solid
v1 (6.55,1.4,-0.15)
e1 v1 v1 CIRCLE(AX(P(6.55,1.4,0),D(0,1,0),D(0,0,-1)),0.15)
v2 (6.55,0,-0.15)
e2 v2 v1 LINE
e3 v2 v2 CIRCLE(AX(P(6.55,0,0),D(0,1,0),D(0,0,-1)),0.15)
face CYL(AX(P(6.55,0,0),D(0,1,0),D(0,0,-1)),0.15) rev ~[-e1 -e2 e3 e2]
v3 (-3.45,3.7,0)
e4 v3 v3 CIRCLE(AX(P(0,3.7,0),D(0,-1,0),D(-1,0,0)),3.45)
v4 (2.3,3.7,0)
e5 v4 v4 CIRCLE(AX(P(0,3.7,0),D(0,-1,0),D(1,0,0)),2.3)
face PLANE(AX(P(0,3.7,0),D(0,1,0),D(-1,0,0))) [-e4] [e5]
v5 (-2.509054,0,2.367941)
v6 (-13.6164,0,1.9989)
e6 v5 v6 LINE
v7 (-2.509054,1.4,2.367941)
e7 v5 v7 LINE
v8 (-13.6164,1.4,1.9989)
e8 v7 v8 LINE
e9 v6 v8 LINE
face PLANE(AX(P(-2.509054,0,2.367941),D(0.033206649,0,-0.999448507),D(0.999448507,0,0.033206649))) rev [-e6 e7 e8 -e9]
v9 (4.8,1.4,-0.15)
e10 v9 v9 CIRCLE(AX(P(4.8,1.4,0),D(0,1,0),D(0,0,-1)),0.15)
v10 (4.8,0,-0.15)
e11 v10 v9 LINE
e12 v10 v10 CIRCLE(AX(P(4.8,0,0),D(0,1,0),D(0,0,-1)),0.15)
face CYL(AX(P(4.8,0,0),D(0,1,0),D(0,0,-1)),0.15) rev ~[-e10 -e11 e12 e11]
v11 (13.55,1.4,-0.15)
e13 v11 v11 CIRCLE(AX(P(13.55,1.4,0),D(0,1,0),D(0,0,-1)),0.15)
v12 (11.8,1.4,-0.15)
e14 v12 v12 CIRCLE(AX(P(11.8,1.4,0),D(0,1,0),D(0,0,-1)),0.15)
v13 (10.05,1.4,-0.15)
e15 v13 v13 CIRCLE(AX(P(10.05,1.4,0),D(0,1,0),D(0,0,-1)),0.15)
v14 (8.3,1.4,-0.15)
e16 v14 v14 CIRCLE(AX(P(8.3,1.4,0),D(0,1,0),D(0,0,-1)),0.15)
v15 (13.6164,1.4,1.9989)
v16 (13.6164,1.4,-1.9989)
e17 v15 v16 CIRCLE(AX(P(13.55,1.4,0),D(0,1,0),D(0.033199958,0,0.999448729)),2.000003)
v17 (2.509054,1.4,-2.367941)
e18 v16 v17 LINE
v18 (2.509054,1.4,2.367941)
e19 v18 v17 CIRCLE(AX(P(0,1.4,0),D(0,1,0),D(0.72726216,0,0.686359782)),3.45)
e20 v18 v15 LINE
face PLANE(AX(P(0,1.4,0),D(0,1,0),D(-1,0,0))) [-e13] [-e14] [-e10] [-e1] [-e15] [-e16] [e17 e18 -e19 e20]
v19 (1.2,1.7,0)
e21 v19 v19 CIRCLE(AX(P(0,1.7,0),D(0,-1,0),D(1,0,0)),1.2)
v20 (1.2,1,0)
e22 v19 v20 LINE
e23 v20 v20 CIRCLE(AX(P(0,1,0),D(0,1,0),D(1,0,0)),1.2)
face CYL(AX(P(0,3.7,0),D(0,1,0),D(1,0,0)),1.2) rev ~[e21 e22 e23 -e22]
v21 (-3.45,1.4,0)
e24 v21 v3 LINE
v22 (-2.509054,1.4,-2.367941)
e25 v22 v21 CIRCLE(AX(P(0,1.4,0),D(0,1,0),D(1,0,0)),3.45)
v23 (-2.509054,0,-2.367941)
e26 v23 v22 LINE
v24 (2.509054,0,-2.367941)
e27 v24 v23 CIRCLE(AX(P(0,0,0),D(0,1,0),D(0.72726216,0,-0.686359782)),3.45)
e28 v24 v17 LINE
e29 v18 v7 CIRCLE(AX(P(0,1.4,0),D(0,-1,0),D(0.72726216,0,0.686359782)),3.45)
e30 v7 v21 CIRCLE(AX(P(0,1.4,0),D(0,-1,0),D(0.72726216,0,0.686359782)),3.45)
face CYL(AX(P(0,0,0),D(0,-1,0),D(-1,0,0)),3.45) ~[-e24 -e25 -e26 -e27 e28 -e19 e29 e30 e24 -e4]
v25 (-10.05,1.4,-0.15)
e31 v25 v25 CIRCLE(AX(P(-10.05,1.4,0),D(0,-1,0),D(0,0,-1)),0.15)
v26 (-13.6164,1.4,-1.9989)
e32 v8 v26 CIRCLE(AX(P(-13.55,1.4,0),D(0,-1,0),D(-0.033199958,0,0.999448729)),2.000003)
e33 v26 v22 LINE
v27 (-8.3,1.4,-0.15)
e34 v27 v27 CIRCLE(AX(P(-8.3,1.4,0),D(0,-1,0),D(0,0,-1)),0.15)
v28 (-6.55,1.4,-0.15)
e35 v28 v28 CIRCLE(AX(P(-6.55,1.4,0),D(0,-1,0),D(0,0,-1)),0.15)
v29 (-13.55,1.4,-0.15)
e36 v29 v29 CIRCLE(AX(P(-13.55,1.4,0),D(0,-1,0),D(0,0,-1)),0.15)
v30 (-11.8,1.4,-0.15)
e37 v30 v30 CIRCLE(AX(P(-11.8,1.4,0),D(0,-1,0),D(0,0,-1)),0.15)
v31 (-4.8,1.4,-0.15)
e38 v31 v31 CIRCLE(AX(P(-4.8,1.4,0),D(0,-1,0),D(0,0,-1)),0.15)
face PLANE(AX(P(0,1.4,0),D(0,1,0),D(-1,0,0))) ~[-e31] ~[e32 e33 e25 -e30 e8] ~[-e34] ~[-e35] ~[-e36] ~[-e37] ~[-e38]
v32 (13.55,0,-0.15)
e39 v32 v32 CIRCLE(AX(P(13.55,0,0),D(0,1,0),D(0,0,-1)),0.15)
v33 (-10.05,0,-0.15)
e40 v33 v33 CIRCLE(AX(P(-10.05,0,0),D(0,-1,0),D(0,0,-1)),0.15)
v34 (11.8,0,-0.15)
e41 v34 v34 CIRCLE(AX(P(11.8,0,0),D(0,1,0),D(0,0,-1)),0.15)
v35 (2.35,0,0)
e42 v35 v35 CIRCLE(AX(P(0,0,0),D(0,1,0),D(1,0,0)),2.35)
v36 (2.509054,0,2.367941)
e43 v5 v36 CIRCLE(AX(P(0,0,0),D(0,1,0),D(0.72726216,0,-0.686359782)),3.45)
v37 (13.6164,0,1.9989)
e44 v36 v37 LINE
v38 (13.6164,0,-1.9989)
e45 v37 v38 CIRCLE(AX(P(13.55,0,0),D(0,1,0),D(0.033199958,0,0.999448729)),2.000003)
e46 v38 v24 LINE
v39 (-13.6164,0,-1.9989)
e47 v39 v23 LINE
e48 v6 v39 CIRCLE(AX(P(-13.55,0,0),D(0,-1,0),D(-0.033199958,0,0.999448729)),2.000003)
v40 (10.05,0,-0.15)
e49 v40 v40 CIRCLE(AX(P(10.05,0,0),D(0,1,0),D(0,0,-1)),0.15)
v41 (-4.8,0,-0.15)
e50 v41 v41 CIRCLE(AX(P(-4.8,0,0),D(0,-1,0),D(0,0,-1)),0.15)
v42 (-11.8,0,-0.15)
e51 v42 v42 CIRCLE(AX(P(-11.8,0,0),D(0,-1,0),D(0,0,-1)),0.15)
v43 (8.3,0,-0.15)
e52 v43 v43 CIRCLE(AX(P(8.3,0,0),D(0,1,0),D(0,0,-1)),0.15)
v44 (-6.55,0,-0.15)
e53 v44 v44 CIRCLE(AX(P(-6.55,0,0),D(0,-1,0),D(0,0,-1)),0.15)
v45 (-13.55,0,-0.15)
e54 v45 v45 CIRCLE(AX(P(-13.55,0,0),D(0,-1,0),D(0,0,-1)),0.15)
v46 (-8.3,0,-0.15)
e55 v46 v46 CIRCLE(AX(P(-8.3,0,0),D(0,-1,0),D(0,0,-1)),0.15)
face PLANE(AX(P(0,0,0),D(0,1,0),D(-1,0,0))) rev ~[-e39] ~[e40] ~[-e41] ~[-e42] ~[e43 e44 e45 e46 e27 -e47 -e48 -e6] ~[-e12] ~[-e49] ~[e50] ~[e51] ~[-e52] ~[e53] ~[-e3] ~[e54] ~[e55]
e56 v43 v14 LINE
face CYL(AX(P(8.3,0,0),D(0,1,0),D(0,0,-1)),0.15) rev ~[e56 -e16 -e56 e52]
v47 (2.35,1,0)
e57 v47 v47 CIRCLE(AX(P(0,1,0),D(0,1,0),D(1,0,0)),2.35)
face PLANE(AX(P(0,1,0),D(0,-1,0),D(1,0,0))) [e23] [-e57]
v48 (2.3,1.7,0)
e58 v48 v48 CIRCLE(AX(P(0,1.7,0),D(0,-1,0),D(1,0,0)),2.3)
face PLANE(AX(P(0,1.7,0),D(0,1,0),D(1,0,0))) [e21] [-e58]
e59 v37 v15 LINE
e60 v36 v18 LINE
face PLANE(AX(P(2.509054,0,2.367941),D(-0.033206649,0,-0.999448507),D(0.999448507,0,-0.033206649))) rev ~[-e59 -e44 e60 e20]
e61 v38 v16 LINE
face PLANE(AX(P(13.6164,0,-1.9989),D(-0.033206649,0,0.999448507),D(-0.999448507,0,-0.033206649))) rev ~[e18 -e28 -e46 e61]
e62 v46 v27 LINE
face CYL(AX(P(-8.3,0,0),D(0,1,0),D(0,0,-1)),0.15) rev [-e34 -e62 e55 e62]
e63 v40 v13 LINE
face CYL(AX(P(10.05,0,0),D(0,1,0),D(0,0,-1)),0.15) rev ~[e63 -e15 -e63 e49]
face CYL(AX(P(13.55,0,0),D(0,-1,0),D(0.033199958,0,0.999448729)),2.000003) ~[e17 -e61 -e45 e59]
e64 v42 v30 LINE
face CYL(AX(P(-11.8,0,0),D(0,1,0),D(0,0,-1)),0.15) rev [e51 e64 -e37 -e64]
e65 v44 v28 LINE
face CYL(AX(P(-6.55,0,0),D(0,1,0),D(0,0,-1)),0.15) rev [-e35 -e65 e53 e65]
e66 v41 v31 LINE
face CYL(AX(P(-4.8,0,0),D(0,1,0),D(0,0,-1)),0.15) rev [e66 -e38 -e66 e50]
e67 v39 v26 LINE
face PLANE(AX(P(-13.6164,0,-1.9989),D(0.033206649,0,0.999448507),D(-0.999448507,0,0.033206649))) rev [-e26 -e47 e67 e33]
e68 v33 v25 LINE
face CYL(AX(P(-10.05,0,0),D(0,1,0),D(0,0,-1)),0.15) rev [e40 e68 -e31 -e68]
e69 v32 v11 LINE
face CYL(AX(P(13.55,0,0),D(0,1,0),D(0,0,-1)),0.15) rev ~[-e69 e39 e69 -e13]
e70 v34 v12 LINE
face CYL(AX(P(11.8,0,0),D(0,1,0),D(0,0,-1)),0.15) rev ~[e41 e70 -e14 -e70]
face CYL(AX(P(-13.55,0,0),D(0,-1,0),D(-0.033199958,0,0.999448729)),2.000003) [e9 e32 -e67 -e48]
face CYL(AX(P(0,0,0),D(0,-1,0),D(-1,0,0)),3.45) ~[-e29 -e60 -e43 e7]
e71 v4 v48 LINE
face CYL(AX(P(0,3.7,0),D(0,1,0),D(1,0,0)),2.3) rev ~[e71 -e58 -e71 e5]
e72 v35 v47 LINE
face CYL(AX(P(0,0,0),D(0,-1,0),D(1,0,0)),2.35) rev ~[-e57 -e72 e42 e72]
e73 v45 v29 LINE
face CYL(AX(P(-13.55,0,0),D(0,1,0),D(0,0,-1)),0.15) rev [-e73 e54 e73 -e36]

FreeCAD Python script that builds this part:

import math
import FreeCAD as App
import Part
import Sketcher
Q = App.Units.Quantity

doc = App.newDocument("Part")
body = doc.addObject("PartDesign::Body", "Body")

sketch1 = body.newObject("Sketcher::SketchObject", "Sketch")
sketch1.AttachmentSupport = (doc.getObject("XZ_Plane"), [""])
sketch1.MapMode = "FlatFace"
sketch1.addGeometry(Part.ArcOfCircle(Part.Circle(App.Vector(0, 0, 0), App.Vector(0, 0, 1), 3.5), math.radians(43), math.radians(317)), False)
sketch1.addGeometry(Part.LineSegment(App.Vector(2.5, 2.4, 0), App.Vector(13.6, 2, 0)), False)
sketch1.addGeometry(Part.ArcOfCircle(Part.Circle(App.Vector(13.6, 0, 0), App.Vector(0, 0, 1), 2), math.radians(-88), math.radians(88)), False)
sketch1.addGeometry(Part.LineSegment(App.Vector(13.6, -2, 0), App.Vector(2.5, -2.4, 0)), False)
sketch1.addConstraint(Sketcher.Constraint("Coincident", 0, 1, 1, 1))
sketch1.addConstraint(Sketcher.Constraint("Tangent", 1, 2, 2, 2))
sketch1.addConstraint(Sketcher.Constraint("Tangent", 2, 1, 3, 1))
sketch1.addConstraint(Sketcher.Constraint("Coincident", 3, 2, 0, 2))
sketch1.addConstraint(Sketcher.Constraint("Coincident", 0, 3, -1, 1))
sketch1.addConstraint(Sketcher.Constraint("Symmetric", 1, 2, 2, 1, -1))
sketch1.addConstraint(Sketcher.Constraint("Radius", 2, Q("2 mm")))
sketch1.addConstraint(Sketcher.Constraint("Radius", 0, Q("3.45 mm")))
sketch1.addConstraint(Sketcher.Constraint("DistanceX", -1, 1, 2, 3, Q("13.55 mm")))
sketch1.addConstraint(Sketcher.Constraint("DistanceX", -1, 1, 0, 1, Q("2.509 mm")))
pad1 = body.newObject("PartDesign::Pad", "Pad")
pad1.Profile = sketch1
pad1.Length = 1.4
pad1.Reversed = True

sketch2 = body.newObject("Sketcher::SketchObject", "Sketch001")
sketch2.AttachmentSupport = (doc.getObject("XZ_Plane"), [""])
sketch2.MapMode = "FlatFace"
sketch2.addGeometry(Part.Circle(App.Vector(0, 0, 0), App.Vector(0, 0, 1), 3.5), False)
sketch2.addConstraint(Sketcher.Constraint("Coincident", 0, 3, -1, 1))
sketch2.addConstraint(Sketcher.Constraint("Diameter", 0, Q("6.9 mm")))
pad2 = body.newObject("PartDesign::Pad", "Pad001")
pad2.Profile = sketch2
pad2.Length = 3.7
pad2.Reversed = True

sketch3 = body.newObject("Sketcher::SketchObject", "Sketch002")
sketch3.AttachmentSupport = (doc.getObject("XZ_Plane"), [""])
sketch3.MapMode = "FlatFace"
sketch3.AttachmentOffset = App.Placement(App.Vector(0, 0, -3.7), App.Rotation())
sketch3.addGeometry(Part.Circle(App.Vector(0, 0, 0), App.Vector(0, 0, 1), 1.2), False)
sketch3.addConstraint(Sketcher.Constraint("Coincident", 0, 3, -1, 1))
sketch3.addConstraint(Sketcher.Constraint("Diameter", 0, Q("2.4 mm")))
pocket1 = body.newObject("PartDesign::Pocket", "Pocket")
pocket1.Profile = sketch3
pocket1.Type = "ThroughAll"
pocket1.Reversed = True

sketch4 = body.newObject("Sketcher::SketchObject", "Sketch003")
sketch4.AttachmentSupport = (doc.getObject("XZ_Plane"), [""])
sketch4.MapMode = "FlatFace"
sketch4.AttachmentOffset = App.Placement(App.Vector(0, 0, -3.7), App.Rotation())
sketch4.addGeometry(Part.Circle(App.Vector(0, 0, 0), App.Vector(0, 0, 1), 2.3), False)
sketch4.addConstraint(Sketcher.Constraint("Coincident", 0, 3, -1, 1))
sketch4.addConstraint(Sketcher.Constraint("Diameter", 0, Q("4.6 mm")))
pocket2 = body.newObject("PartDesign::Pocket", "Pocket001")
pocket2.Profile = sketch4
pocket2.Length = 2
pocket2.Reversed = True

sketch5 = body.newObject("Sketcher::SketchObject", "Sketch004")
sketch5.AttachmentSupport = (doc.getObject("XZ_Plane"), [""])
sketch5.MapMode = "FlatFace"
sketch5.addGeometry(Part.Circle(App.Vector(0, 0, 0), App.Vector(0, 0, 1), 2.4), False)
sketch5.addConstraint(Sketcher.Constraint("Coincident", 0, 3, -1, 1))
sketch5.addConstraint(Sketcher.Constraint("Diameter", 0, Q("4.7 mm")))
pocket3 = body.newObject("PartDesign::Pocket", "Pocket002")
pocket3.Profile = sketch5
pocket3.Length = 1

sketch6 = body.newObject("Sketcher::SketchObject", "Sketch005")
sketch6.AttachmentSupport = (doc.getObject("XZ_Plane"), [""])
sketch6.MapMode = "FlatFace"
sketch6.addGeometry(Part.Circle(App.Vector(13.55, 0, 0), App.Vector(0, 0, 1), 0.15), False)
sketch6.addGeometry(Part.Circle(App.Vector(10.05, 0, 0), App.Vector(0, 0, 1), 0.15), False)
sketch6.addGeometry(Part.Circle(App.Vector(8.3, 0, 0), App.Vector(0, 0, 1), 0.15), False)
sketch6.addGeometry(Part.Circle(App.Vector(6.55, 0, 0), App.Vector(0, 0, 1), 0.15), False)
sketch6.addGeometry(Part.Circle(App.Vector(4.8, 0, 0), App.Vector(0, 0, 1), 0.15), False)
sketch6.addGeometry(Part.Circle(App.Vector(11.8, 0, 0), App.Vector(0, 0, 1), 0.15), False)
sketch6.addConstraint(Sketcher.Constraint("Equal", 0, 1))
sketch6.addConstraint(Sketcher.Constraint("Equal", 1, 2))
sketch6.addConstraint(Sketcher.Constraint("Equal", 2, 3))
sketch6.addConstraint(Sketcher.Constraint("Equal", 3, 4))
sketch6.addConstraint(Sketcher.Constraint("Equal", 4, 5))
sketch6.addConstraint(Sketcher.Constraint("PointOnObject", 0, 3, -1))
sketch6.addConstraint(Sketcher.Constraint("PointOnObject", 1, 3, -1))
sketch6.addConstraint(Sketcher.Constraint("PointOnObject", 2, 3, -1))
sketch6.addConstraint(Sketcher.Constraint("PointOnObject", 3, 3, -1))
sketch6.addConstraint(Sketcher.Constraint("PointOnObject", 4, 3, -1))
sketch6.addConstraint(Sketcher.Constraint("PointOnObject", 5, 3, -1))
sketch6.addConstraint(Sketcher.Constraint("Diameter", 0, Q("0.3 mm")))
sketch6.addConstraint(Sketcher.Constraint("DistanceX", 3, 3, 0, 3, Q("7 mm")))
sketch6.addConstraint(Sketcher.Constraint("DistanceX", 4, 3, 5, 3, Q("7 mm")))
sketch6.addConstraint(Sketcher.Constraint("DistanceX", -1, 1, 2, 3, Q("8.3 mm")))
sketch6.addConstraint(Sketcher.Constraint("DistanceX", -1, 1, 4, 3, Q("4.8 mm")))
sketch6.addConstraint(Sketcher.Constraint("DistanceX", 1, 3, 0, 3, Q("3.5 mm")))
sketch6.addConstraint(Sketcher.Constraint("DistanceX", -1, 1, 0, 3, Q("13.55 mm")))
doc.recompute()
hole = body.newObject("PartDesign::Hole", "Hole")
hole.Profile = sketch6
hole.ThreadType = "None"
hole.Diameter = 0.3
hole.DepthType = "ThroughAll"
doc.recompute()

mirrored = body.newObject("PartDesign::Mirrored", "Mirrored")
mirrored.TransformMode = "Transform body"
mirrored.MirrorPlane = (doc.getObject("YZ_Plane"), [""])
body.Tip = mirrored

doc.recompute()
